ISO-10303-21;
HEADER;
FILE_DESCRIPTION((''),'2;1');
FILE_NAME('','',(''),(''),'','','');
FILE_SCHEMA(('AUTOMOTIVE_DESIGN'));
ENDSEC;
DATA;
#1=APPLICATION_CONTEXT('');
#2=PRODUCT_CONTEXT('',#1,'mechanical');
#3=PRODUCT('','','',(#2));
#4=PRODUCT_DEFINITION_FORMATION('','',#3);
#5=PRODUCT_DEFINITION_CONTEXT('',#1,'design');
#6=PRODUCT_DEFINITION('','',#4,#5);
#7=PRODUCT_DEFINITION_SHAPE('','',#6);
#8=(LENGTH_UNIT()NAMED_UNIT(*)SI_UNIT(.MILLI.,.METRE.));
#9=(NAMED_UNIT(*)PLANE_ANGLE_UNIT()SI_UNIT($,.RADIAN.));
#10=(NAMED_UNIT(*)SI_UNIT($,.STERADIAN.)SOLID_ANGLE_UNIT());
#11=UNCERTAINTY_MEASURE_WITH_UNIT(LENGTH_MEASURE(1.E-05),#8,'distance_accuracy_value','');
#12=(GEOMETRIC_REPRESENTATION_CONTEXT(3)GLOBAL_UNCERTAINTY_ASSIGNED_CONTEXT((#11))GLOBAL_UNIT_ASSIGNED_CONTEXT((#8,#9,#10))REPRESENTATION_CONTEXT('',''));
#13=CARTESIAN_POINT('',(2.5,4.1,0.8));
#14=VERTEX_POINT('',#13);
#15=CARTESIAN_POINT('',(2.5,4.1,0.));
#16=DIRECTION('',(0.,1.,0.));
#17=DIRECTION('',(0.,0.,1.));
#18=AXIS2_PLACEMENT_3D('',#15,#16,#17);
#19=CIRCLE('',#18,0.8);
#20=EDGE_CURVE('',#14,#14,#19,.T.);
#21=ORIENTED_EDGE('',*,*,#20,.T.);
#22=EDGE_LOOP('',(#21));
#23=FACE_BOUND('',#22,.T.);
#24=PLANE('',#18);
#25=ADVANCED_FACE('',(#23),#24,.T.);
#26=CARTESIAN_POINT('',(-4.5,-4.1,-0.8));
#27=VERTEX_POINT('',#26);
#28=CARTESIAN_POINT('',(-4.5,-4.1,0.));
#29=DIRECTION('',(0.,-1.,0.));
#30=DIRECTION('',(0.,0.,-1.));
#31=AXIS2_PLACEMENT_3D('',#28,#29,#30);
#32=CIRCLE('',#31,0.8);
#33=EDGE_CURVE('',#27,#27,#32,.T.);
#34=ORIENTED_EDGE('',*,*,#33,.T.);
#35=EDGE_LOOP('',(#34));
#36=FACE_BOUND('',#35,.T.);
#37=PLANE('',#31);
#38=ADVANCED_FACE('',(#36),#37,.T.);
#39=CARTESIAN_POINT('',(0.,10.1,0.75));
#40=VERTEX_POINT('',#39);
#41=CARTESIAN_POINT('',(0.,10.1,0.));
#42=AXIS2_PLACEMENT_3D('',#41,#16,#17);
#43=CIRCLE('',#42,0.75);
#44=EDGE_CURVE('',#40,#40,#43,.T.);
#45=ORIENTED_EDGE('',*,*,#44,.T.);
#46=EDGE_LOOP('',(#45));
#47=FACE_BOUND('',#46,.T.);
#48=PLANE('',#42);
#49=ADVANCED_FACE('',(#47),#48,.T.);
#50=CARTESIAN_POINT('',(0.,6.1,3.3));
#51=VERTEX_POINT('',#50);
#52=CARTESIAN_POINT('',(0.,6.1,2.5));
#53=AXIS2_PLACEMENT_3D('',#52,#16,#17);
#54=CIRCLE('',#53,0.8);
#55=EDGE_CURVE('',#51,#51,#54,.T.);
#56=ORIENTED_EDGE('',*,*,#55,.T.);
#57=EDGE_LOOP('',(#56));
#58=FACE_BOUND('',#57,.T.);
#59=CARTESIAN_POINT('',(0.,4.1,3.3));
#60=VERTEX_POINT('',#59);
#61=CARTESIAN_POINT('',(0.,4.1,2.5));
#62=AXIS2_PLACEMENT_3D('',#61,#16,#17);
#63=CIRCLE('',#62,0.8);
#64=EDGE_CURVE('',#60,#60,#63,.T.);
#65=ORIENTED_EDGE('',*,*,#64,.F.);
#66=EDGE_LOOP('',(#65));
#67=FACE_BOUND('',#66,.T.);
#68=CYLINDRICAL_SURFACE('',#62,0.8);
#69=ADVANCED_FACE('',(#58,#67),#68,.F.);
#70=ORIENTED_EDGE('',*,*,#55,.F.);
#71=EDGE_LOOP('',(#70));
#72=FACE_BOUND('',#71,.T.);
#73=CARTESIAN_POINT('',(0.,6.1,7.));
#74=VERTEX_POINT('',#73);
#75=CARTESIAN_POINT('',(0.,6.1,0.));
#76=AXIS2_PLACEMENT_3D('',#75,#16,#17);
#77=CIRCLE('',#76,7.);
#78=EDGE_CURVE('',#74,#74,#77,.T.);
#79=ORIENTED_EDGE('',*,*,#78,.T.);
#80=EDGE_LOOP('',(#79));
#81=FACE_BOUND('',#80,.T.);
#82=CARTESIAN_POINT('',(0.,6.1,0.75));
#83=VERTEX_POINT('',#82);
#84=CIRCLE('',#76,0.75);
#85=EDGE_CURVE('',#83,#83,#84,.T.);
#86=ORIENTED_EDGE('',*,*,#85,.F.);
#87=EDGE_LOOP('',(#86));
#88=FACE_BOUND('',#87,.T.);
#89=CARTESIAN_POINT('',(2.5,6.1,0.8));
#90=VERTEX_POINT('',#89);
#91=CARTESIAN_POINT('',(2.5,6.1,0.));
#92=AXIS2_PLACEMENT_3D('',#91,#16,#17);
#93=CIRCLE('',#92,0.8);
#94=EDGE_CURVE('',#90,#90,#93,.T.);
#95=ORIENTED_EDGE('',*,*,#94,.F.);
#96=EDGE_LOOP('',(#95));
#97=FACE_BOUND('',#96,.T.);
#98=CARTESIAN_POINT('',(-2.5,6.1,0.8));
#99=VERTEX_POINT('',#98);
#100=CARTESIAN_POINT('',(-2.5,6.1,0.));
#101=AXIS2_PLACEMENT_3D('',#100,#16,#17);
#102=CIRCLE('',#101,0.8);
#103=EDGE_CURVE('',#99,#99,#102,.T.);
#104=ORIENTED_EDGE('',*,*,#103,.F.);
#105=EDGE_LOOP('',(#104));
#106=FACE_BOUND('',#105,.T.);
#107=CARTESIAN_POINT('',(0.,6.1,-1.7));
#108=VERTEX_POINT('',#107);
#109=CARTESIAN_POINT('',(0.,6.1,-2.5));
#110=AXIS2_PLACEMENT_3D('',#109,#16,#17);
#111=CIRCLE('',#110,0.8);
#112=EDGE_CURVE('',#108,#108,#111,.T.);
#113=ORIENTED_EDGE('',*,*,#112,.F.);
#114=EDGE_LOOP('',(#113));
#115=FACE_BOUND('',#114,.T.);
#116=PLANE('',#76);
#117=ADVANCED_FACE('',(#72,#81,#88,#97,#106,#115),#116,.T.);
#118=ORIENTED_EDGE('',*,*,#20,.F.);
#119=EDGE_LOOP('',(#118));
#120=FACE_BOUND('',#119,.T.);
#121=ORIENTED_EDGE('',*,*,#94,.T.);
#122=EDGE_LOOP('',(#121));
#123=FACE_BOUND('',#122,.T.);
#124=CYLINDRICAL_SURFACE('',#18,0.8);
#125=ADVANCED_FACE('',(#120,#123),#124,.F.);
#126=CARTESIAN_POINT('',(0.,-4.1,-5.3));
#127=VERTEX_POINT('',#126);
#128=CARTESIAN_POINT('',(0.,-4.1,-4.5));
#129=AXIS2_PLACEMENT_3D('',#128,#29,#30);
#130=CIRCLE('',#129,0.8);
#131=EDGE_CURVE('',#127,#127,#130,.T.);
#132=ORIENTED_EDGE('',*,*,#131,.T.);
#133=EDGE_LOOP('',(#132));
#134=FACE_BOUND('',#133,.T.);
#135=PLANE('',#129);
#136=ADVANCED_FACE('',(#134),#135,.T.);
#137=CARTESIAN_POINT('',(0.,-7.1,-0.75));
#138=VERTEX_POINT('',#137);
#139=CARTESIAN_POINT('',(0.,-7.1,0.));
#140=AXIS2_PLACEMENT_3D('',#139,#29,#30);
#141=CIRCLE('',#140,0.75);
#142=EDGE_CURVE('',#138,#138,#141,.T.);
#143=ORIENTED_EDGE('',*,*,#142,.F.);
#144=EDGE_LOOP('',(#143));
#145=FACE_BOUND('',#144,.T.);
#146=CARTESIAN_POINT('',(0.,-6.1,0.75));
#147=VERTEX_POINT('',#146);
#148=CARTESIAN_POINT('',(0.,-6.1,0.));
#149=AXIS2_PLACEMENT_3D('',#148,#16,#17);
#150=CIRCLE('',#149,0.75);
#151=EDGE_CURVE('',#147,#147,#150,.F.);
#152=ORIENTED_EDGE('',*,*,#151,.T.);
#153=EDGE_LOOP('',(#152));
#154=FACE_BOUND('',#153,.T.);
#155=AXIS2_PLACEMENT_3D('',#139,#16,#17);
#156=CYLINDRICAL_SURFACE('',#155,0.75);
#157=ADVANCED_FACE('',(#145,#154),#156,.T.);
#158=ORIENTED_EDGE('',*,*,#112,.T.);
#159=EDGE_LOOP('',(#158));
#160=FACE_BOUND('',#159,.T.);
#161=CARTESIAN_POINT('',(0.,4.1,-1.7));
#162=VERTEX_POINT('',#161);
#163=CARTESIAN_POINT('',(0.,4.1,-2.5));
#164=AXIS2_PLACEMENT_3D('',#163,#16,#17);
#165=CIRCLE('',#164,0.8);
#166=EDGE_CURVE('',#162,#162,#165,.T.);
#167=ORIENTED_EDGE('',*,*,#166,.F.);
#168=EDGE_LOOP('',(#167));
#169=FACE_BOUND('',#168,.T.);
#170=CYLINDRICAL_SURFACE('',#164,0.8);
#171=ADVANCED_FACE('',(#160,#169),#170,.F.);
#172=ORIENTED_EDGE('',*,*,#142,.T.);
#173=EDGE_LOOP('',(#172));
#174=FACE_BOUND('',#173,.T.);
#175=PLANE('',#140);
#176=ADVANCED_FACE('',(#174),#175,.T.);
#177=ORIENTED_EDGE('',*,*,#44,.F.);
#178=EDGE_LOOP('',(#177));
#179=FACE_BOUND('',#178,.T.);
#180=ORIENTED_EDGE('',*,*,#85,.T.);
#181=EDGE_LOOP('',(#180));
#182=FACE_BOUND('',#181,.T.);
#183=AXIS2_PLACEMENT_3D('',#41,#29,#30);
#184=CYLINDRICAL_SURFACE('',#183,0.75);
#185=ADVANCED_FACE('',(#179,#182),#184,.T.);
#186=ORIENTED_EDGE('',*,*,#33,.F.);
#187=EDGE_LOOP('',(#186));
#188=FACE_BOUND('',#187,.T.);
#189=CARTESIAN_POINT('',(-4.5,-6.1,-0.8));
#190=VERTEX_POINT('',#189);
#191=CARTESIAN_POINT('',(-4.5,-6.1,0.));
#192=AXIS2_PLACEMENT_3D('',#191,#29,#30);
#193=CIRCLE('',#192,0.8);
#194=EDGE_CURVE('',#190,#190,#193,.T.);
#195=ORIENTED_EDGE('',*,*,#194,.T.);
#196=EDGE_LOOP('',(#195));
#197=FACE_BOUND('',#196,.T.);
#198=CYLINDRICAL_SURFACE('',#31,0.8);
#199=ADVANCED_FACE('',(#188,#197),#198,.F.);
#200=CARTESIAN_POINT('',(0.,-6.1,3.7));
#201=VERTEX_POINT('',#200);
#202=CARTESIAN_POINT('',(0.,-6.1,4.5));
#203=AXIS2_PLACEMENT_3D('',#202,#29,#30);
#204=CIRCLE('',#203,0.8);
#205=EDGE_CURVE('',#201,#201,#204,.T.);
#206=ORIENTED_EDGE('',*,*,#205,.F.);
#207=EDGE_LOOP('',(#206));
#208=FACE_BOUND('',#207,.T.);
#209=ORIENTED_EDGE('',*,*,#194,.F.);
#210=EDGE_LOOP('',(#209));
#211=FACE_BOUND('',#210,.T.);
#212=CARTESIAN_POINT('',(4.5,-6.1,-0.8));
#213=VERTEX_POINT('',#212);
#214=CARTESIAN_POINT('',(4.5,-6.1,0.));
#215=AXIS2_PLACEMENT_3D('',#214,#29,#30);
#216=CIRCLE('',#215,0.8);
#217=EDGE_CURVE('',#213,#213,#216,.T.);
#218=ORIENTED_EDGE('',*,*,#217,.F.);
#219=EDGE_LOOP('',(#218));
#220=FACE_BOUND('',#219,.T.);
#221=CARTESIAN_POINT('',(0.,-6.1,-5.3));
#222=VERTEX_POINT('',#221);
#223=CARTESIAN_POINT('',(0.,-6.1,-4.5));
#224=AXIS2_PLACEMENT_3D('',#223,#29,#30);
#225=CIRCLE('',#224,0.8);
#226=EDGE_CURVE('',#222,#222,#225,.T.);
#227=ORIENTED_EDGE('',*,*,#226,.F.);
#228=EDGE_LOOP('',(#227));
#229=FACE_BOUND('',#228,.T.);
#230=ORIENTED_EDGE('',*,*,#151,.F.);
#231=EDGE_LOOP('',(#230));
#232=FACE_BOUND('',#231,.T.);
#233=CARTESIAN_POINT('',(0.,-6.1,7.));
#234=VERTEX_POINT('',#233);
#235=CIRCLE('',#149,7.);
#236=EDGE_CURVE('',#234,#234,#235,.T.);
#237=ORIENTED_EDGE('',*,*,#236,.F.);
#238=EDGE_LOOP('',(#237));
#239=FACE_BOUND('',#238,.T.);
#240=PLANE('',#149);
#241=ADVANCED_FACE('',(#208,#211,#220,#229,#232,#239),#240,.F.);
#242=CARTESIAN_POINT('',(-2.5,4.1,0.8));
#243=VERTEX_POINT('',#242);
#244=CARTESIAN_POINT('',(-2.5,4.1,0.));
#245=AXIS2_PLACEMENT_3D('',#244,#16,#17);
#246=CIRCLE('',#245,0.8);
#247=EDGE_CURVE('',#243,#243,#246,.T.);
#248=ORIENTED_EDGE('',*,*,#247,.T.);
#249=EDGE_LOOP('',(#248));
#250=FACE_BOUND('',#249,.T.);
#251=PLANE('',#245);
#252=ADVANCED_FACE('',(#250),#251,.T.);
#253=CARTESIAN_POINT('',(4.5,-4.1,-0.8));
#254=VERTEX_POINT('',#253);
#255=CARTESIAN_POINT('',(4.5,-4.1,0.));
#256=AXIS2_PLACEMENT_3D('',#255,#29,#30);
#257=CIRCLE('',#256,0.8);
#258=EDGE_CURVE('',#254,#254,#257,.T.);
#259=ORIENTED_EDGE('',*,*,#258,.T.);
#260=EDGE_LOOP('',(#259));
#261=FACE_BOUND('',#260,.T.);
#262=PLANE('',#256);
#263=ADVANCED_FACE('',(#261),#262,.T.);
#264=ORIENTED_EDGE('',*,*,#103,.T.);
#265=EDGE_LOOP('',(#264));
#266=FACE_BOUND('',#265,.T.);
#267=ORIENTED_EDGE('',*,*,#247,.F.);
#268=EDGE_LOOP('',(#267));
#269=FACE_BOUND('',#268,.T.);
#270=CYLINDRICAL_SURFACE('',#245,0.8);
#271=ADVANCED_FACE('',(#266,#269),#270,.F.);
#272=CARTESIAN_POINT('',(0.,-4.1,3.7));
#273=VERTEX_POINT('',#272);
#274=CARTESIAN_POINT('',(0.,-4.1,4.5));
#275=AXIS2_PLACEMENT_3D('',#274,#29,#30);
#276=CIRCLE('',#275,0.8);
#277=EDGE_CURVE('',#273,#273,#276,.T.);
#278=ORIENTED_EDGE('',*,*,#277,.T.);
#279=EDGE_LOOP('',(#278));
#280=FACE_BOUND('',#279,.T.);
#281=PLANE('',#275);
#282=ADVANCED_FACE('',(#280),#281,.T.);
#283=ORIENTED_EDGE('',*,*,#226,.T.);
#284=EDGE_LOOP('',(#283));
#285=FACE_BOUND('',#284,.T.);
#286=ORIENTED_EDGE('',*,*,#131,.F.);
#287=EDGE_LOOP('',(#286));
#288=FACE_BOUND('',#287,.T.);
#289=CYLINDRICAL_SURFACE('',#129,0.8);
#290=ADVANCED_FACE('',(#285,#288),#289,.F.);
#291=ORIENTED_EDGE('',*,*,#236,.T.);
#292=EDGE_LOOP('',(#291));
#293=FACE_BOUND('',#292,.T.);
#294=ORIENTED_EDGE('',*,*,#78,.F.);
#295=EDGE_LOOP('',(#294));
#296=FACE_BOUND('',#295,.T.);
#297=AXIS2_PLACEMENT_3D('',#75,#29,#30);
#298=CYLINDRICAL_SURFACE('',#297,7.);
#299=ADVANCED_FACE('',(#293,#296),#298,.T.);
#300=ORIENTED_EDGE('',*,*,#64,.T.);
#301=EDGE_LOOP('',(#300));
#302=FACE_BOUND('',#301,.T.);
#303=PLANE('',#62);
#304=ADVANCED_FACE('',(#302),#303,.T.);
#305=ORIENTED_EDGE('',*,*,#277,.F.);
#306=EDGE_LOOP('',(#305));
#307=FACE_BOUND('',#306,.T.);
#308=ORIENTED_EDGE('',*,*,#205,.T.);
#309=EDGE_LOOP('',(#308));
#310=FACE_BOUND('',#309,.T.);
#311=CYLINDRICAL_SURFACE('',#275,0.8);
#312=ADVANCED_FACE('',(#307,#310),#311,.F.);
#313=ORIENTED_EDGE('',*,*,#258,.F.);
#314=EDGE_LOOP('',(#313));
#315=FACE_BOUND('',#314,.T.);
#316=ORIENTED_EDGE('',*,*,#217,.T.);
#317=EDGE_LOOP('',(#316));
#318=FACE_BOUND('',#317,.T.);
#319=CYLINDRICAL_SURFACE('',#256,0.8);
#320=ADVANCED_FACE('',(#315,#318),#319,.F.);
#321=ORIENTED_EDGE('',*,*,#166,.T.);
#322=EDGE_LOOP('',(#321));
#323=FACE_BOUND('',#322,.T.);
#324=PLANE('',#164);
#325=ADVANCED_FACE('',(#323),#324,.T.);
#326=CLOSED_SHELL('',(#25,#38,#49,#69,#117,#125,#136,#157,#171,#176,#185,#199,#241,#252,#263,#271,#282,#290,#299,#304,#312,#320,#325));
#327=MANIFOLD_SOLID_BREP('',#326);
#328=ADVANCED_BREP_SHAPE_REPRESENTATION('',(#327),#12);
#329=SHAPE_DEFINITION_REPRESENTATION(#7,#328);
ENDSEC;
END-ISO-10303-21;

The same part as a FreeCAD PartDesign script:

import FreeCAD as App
import Part
import Sketcher

doc = App.newDocument("Part")
body = doc.addObject("PartDesign::Body", "Body")

# Sketch on XZ plane
sketch1 = doc.addObject("Sketcher::SketchObject", "Sketch")
body.addObject(sketch1)
sketch1.AttachmentSupport = (doc.XZ_Plane, [""])
sketch1.MapMode = "FlatFace"
sketch1.addGeometry(Part.Circle(App.Vector(0, 0, 0), App.Vector(0, 0, 1), 7), False)
sketch1.addConstraint(Sketcher.Constraint("Coincident", 0, 3, -1, 1))
sketch1.addConstraint(Sketcher.Constraint("Diameter", 0, 14.0))
pad1 = doc.addObject("PartDesign::Pad", "Pad")
body.addObject(pad1)
pad1.Profile = sketch1
pad1.Length = 12.2
pad1.Midplane = True

# Sketch on XZ plane
sketch2 = doc.addObject("Sketcher::SketchObject", "Sketch001")
body.addObject(sketch2)
sketch2.AttachmentSupport = (doc.XZ_Plane, [""])
sketch2.MapMode = "FlatFace"
sketch2.AttachmentOffset = App.Placement(App.Vector(0, 0, 6.1), App.Rotation())
sketch2.addGeometry(Part.Circle(App.Vector(0, 0, 0), App.Vector(0, 0, 1), 0.8), False)
sketch2.addConstraint(Sketcher.Constraint("Coincident", 0, 3, -1, 1))
sketch2.addConstraint(Sketcher.Constraint("Diameter", 0, 1.5))
pad2 = doc.addObject("PartDesign::Pad", "Pad001")
body.addObject(pad2)
pad2.Profile = sketch2
pad2.Length = 1

# Sketch on XZ plane
sketch3 = doc.addObject("Sketcher::SketchObject", "Sketch002")
body.addObject(sketch3)
sketch3.AttachmentSupport = (doc.XZ_Plane, [""])
sketch3.MapMode = "FlatFace"
sketch3.AttachmentOffset = App.Placement(App.Vector(0, 0, -10.1), App.Rotation())
sketch3.addGeometry(Part.Circle(App.Vector(0, 0, 0), App.Vector(0, 0, 1), 0.8), False)
sketch3.addConstraint(Sketcher.Constraint("Coincident", 0, 3, -1, 1))
sketch3.addConstraint(Sketcher.Constraint("Diameter", 0, 1.5))
pad3 = doc.addObject("PartDesign::Pad", "Pad002")
body.addObject(pad3)
pad3.Profile = sketch3
pad3.Length = 4

# Sketch on XZ plane
sketch4 = doc.addObject("Sketcher::SketchObject", "Sketch003")
body.addObject(sketch4)
sketch4.AttachmentSupport = (doc.XZ_Plane, [""])
sketch4.MapMode = "FlatFace"
sketch4.AttachmentOffset = App.Placement(App.Vector(0, 0, 6.1), App.Rotation())
sketch4.addGeometry(Part.Circle(App.Vector(0, 4.5, 0), App.Vector(0, 0, 1), 0.8), False)
sketch4.addGeometry(Part.Circle(App.Vector(4.5, 0, 0), App.Vector(0, 0, 1), 0.8), False)
sketch4.addGeometry(Part.Circle(App.Vector(0, -4.5, 0), App.Vector(0, 0, 1), 0.8), False)
sketch4.addGeometry(Part.Circle(App.Vector(-4.5, 0, 0), App.Vector(0, 0, 1), 0.8), False)
sketch4.addConstraint(Sketcher.Constraint("Equal", 0, 1))
sketch4.addConstraint(Sketcher.Constraint("Equal", 1, 2))
sketch4.addConstraint(Sketcher.Constraint("Equal", 2, 3))
sketch4.addConstraint(Sketcher.Constraint("Symmetric", 0, 3, 2, 3, -1, 1))
sketch4.addConstraint(Sketcher.Constraint("Symmetric", 1, 3, 3, 3, -1, 1))
sketch4.addConstraint(Sketcher.Constraint("PointOnObject", 0, 3, -2))
sketch4.addConstraint(Sketcher.Constraint("PointOnObject", 1, 3, -1))
sketch4.addConstraint(Sketcher.Constraint("Diameter", 0, 1.6))
sketch4.addConstraint(Sketcher.Constraint("DistanceY", 2, 3, 0, 3, 9.0))
sketch4.addConstraint(Sketcher.Constraint("DistanceX", 3, 3, 1, 3, 9.0))
pocket1 = doc.addObject("PartDesign::Pocket", "Pocket")
body.addObject(pocket1)
pocket1.Profile = sketch4
pocket1.Length = 2

# Sketch on XZ plane
sketch5 = doc.addObject("Sketcher::SketchObject", "Sketch004")
body.addObject(sketch5)
sketch5.AttachmentSupport = (doc.XZ_Plane, [""])
sketch5.MapMode = "FlatFace"
sketch5.AttachmentOffset = App.Placement(App.Vector(0, 0, -6.1), App.Rotation())
sketch5.addGeometry(Part.Circle(App.Vector(2.5, 0, 0), App.Vector(0, 0, 1), 0.8), False)
sketch5.addGeometry(Part.Circle(App.Vector(0, 2.5, 0), App.Vector(0, 0, 1), 0.8), False)
sketch5.addGeometry(Part.Circle(App.Vector(-2.5, 0, 0), App.Vector(0, 0, 1), 0.8), False)
sketch5.addGeometry(Part.Circle(App.Vector(0, -2.5, 0), App.Vector(0, 0, 1), 0.8), False)
sketch5.addConstraint(Sketcher.Constraint("Equal", 0, 1))
sketch5.addConstraint(Sketcher.Constraint("Equal", 1, 2))
sketch5.addConstraint(Sketcher.Constraint("Equal", 2, 3))
sketch5.addConstraint(Sketcher.Constraint("Symmetric", 0, 3, 2, 3, -1, 1))
sketch5.addConstraint(Sketcher.Constraint("Symmetric", 1, 3, 3, 3, -1, 1))
sketch5.addConstraint(Sketcher.Constraint("PointOnObject", 0, 3, -1))
sketch5.addConstraint(Sketcher.Constraint("PointOnObject", 1, 3, -2))
sketch5.addConstraint(Sketcher.Constraint("Diameter", 0, 1.6))
sketch5.addConstraint(Sketcher.Constraint("DistanceX", 2, 3, 0, 3, 5.0))
sketch5.addConstraint(Sketcher.Constraint("DistanceY", 3, 3, 1, 3, 5.0))
pocket2 = doc.addObject("PartDesign::Pocket", "Pocket001")
body.addObject(pocket2)
pocket2.Profile = sketch5
pocket2.Length = 2
pocket2.Reversed = True

doc.recompute()
